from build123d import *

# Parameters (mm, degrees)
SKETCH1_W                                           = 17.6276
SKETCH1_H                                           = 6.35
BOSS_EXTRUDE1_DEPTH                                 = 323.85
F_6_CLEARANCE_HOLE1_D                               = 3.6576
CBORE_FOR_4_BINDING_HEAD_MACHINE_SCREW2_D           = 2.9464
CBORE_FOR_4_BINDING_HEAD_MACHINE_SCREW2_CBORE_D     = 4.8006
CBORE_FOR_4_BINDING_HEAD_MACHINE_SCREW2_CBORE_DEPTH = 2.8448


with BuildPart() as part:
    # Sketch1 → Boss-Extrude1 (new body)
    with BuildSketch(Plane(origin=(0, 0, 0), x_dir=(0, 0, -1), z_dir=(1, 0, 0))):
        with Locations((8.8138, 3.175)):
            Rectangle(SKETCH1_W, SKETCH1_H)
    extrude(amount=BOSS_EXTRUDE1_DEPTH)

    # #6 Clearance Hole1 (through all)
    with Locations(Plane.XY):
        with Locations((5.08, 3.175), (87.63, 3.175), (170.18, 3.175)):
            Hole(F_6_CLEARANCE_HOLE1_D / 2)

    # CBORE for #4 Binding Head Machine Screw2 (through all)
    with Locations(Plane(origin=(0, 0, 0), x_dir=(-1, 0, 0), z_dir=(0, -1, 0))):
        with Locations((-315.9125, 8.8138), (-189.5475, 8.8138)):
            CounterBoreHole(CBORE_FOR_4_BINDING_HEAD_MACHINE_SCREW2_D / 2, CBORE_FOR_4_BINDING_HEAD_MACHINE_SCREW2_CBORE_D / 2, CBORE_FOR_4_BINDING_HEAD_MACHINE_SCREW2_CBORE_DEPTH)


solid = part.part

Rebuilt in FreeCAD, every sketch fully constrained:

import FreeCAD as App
import Part
import Sketcher
Q = App.Units.Quantity

doc = App.newDocument("Part")
body = doc.addObject("PartDesign::Body", "Body")

# Sketch on YZ plane
sketch1 = body.newObject("Sketcher::SketchObject", "Sketch")
sketch1.AttachmentSupport = (doc.getObject("YZ_Plane"), [""])
sketch1.MapMode = "FlatFace"
sketch1.addGeometry([
    Part.LineSegment(App.Vector(6, 0, 0), App.Vector(0, 0, 0)),
    Part.LineSegment(App.Vector(0, 0, 0), App.Vector(0, -18, 0)),
    Part.LineSegment(App.Vector(0, -18, 0), App.Vector(6, -18, 0)),
    Part.LineSegment(App.Vector(6, -18, 0), App.Vector(6, 0, 0)),
], False)
sketch1.addConstraint([
    Sketcher.Constraint("Coincident", 0, 2, 1, 1),
    Sketcher.Constraint("Coincident", 1, 2, 2, 1),
    Sketcher.Constraint("Coincident", 2, 2, 3, 1),
    Sketcher.Constraint("Coincident", 3, 2, 0, 1),
    Sketcher.Constraint("Horizontal", 0),
    Sketcher.Constraint("Vertical", 1),
    Sketcher.Constraint("Horizontal", 2),
    Sketcher.Constraint("Vertical", 3),
    Sketcher.Constraint("Coincident", 0, 2, -1, 1),
    Sketcher.Constraint("DistanceX", 0, 2, 0, 1, Q("0.25 in")),
    Sketcher.Constraint("DistanceY", 1, 2, 1, 1, Q("0.694 in")),
])
pad1 = body.newObject("PartDesign::Pad", "Pad")
pad1.Profile = sketch1
pad1.Length = Q("12.75 in")

# Sketch on XY plane
sketch2 = body.newObject("Sketcher::SketchObject", "Sketch001")
sketch2.AttachmentSupport = (doc.getObject("XY_Plane"), [""])
sketch2.MapMode = "FlatFace"
sketch2.addGeometry([
    Part.Circle(App.Vector(5.1, 3.2, 0), App.Vector(0, 0, 1), 1.8),
    Part.Circle(App.Vector(87.6, 3.2, 0), App.Vector(0, 0, 1), 1.8),
    Part.Circle(App.Vector(170.2, 3.2, 0), App.Vector(0, 0, 1), 1.8),
], False)
sketch2.addConstraint([
    Sketcher.Constraint("Equal", 0, 1),
    Sketcher.Constraint("Equal", 1, 2),
    Sketcher.Constraint("Horizontal", 0, 3, 1, 3),
    Sketcher.Constraint("Horizontal", 1, 3, 2, 3),
    Sketcher.Constraint("Diameter", 0, Q("0.144 in")),
    Sketcher.Constraint("DistanceX", -1, 1, 0, 3, Q("0.2 in")),
    Sketcher.Constraint("DistanceX", -1, 1, 2, 3, Q("6.7 in")),
    Sketcher.Constraint("DistanceX", -1, 1, 1, 3, Q("3.45 in")),
    Sketcher.Constraint("DistanceY", -1, 1, 0, 3, Q("0.125 in")),
])
doc.recompute()
hole = body.newObject("PartDesign::Hole", "Hole")
hole.Profile = sketch2
hole.ThreadType = "None"
hole.Diameter = Q("0.144 in")
hole.DepthType = "ThroughAll"

# Sketch on XZ plane
sketch3 = body.newObject("Sketcher::SketchObject", "Sketch002")
sketch3.AttachmentSupport = (doc.getObject("XZ_Plane"), [""])
sketch3.MapMode = "FlatFace"
sketch3.addGeometry([
    Part.Circle(App.Vector(315.9, -8.8, 0), App.Vector(0, 0, 1), 1.5),
    Part.Circle(App.Vector(189.5, -8.8, 0), App.Vector(0, 0, 1), 1.5),
], False)
sketch3.addConstraint([
    Sketcher.Constraint("Equal", 0, 1),
    Sketcher.Constraint("Horizontal", 0, 3, 1, 3),
    Sketcher.Constraint("Diameter", 0, Q("0.116 in")),
    Sketcher.Constraint("DistanceX", -1, 1, 0, 3, Q("12.4375 in")),
    Sketcher.Constraint("DistanceY", 0, 3, -1, 1, Q("0.347 in")),
    Sketcher.Constraint("DistanceX", 1, 3, 0, 3, Q("4.975 in")),
])
doc.recompute()
hole2 = body.newObject("PartDesign::Hole", "Hole001")
hole2.Profile = sketch3
hole2.ThreadType = "None"
hole2.Diameter = Q("0.116 in")
hole2.DepthType = "ThroughAll"
hole2.HoleCutType = "Counterbore"
hole2.HoleCutDiameter = Q("0.189 in")
hole2.HoleCutDepth = Q("0.112 in")

doc.recompute()
